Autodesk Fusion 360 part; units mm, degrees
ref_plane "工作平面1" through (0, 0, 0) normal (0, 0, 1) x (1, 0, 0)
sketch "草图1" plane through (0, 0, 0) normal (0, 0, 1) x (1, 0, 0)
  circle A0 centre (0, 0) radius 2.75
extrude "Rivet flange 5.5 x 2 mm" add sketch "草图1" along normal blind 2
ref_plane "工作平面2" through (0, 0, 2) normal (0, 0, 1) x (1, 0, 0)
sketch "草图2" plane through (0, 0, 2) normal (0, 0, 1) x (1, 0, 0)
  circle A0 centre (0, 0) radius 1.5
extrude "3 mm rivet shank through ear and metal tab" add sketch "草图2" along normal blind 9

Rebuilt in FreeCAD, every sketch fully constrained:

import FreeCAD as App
import Part
import Sketcher
Q = App.Units.Quantity

doc = App.newDocument("Part")
body = doc.addObject("PartDesign::Body", "Body")

# Sketch on XY plane
sketch1 = body.newObject("Sketcher::SketchObject", "Sketch")
sketch1.AttachmentSupport = (doc.getObject("XY_Plane"), [""])
sketch1.MapMode = "FlatFace"
sketch1.addGeometry(Part.Circle(App.Vector(0, 0, 0), App.Vector(0, 0, 1), 2.8), False)
sketch1.addConstraint([
    Sketcher.Constraint("Coincident", 0, 3, -1, 1),
    Sketcher.Constraint("Diameter", 0, Q("5.5 mm")),
])
pad1 = body.newObject("PartDesign::Pad", "Pad")
pad1.Profile = sketch1
pad1.Length = 2

# Sketch on XY plane
sketch2 = body.newObject("Sketcher::SketchObject", "Sketch001")
sketch2.AttachmentSupport = (doc.getObject("XY_Plane"), [""])
sketch2.MapMode = "FlatFace"
sketch2.AttachmentOffset = App.Placement(App.Vector(0, 0, 2), App.Rotation())
sketch2.addGeometry(Part.Circle(App.Vector(0, 0, 0), App.Vector(0, 0, 1), 1.5), False)
sketch2.addConstraint([
    Sketcher.Constraint("Coincident", 0, 3, -1, 1),
    Sketcher.Constraint("Diameter", 0, Q("3 mm")),
])
pad2 = body.newObject("PartDesign::Pad", "Pad001")
pad2.Profile = sketch2
pad2.Length = 9

doc.recompute()
